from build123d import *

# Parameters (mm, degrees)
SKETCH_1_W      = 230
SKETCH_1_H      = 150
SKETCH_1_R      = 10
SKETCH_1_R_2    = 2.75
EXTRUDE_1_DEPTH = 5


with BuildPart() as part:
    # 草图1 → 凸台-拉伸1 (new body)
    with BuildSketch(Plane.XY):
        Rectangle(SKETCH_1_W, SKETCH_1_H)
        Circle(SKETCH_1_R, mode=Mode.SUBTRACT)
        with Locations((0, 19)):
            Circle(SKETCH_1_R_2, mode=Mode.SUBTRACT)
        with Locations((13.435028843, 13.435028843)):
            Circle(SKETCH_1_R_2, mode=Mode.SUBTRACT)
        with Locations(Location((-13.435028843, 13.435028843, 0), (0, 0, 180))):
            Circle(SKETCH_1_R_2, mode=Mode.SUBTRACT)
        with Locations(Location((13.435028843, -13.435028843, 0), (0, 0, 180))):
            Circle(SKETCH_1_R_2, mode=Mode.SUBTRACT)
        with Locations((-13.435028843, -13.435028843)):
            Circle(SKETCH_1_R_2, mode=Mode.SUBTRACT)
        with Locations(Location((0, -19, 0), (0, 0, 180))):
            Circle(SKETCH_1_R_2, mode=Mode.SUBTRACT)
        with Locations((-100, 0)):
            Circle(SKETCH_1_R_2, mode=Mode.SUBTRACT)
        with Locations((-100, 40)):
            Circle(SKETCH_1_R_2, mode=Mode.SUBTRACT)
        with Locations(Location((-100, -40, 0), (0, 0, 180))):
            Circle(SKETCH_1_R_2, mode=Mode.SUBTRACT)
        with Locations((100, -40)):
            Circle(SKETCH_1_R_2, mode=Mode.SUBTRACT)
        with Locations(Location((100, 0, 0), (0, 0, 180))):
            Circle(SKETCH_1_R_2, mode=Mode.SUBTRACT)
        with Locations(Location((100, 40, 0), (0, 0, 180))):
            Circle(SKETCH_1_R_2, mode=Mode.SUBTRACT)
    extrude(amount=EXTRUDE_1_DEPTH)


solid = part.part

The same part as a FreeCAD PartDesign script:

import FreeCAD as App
import Part
import Sketcher
Q = App.Units.Quantity

doc = App.newDocument("Part")
body = doc.addObject("PartDesign::Body", "Body")

sketch1 = body.newObject("Sketcher::SketchObject", "Sketch")
sketch1.AttachmentSupport = (doc.getObject("XY_Plane"), [""])
sketch1.MapMode = "FlatFace"
sketch1.addGeometry(Part.LineSegment(App.Vector(-115, 75, 0), App.Vector(-115, -75, 0)), False)
sketch1.addGeometry(Part.LineSegment(App.Vector(-115, -75, 0), App.Vector(115, -75, 0)), False)
sketch1.addGeometry(Part.LineSegment(App.Vector(115, -75, 0), App.Vector(115, 75, 0)), False)
sketch1.addGeometry(Part.LineSegment(App.Vector(115, 75, 0), App.Vector(-115, 75, 0)), False)
sketch1.addGeometry(Part.Circle(App.Vector(-100, -40, 0), App.Vector(0, 0, 1), 2.8), False)
sketch1.addGeometry(Part.Circle(App.Vector(-13.4, -13.4, 0), App.Vector(0, 0, 1), 2.8), False)
sketch1.addGeometry(Part.Circle(App.Vector(100, -40, 0), App.Vector(0, 0, 1), 2.8), False)
sketch1.addGeometry(Part.Circle(App.Vector(0, -19, 0), App.Vector(0, 0, 1), 2.8), False)
sketch1.addGeometry(Part.Circle(App.Vector(13.4, -13.4, 0), App.Vector(0, 0, 1), 2.8), False)
sketch1.addGeometry(Part.Circle(App.Vector(-100, 0, 0), App.Vector(0, 0, 1), 2.8), False)
sketch1.addGeometry(Part.Circle(App.Vector(-13.4, 13.4, 0), App.Vector(0, 0, 1), 2.8), False)
sketch1.addGeometry(Part.Circle(App.Vector(-100, 40, 0), App.Vector(0, 0, 1), 2.8), False)
sketch1.addGeometry(Part.Circle(App.Vector(0, 0, 0), App.Vector(0, 0, 1), 10), False)
sketch1.addGeometry(Part.Circle(App.Vector(13.4, 13.4, 0), App.Vector(0, 0, 1), 2.8), False)
sketch1.addGeometry(Part.Circle(App.Vector(0, 19, 0), App.Vector(0, 0, 1), 2.8), False)
sketch1.addGeometry(Part.Circle(App.Vector(100, 0, 0), App.Vector(0, 0, 1), 2.8), False)
sketch1.addGeometry(Part.Circle(App.Vector(100, 40, 0), App.Vector(0, 0, 1), 2.8), False)
sketch1.addConstraint(Sketcher.Constraint("Coincident", 0, 2, 1, 1))
sketch1.addConstraint(Sketcher.Constraint("Coincident", 1, 2, 2, 1))
sketch1.addConstraint(Sketcher.Constraint("Coincident", 2, 2, 3, 1))
sketch1.addConstraint(Sketcher.Constraint("Coincident", 3, 2, 0, 1))
sketch1.addConstraint(Sketcher.Constraint("Vertical", 0))
sketch1.addConstraint(Sketcher.Constraint("Horizontal", 1))
sketch1.addConstraint(Sketcher.Constraint("Vertical", 2))
sketch1.addConstraint(Sketcher.Constraint("Horizontal", 3))
sketch1.addConstraint(Sketcher.Constraint("Coincident", 12, 3, -1, 1))
sketch1.addConstraint(Sketcher.Constraint("Equal", 4, 5))
sketch1.addConstraint(Sketcher.Constraint("Equal", 5, 6))
sketch1.addConstraint(Sketcher.Constraint("Equal", 6, 7))
sketch1.addConstraint(Sketcher.Constraint("Equal", 7, 8))
sketch1.addConstraint(Sketcher.Constraint("Equal", 8, 9))
sketch1.addConstraint(Sketcher.Constraint("Equal", 9, 10))
sketch1.addConstraint(Sketcher.Constraint("Equal", 10, 11))
sketch1.addConstraint(Sketcher.Constraint("Equal", 11, 13))
sketch1.addConstraint(Sketcher.Constraint("Equal", 13, 14))
sketch1.addConstraint(Sketcher.Constraint("Equal", 14, 15))
sketch1.addConstraint(Sketcher.Constraint("Equal", 15, 16))
sketch1.addConstraint(Sketcher.Constraint("Symmetric", 8, 3, 10, 3, -1, 1))
sketch1.addConstraint(Sketcher.Constraint("Symmetric", 6, 3, 11, 3, -1, 1))
sketch1.addConstraint(Sketcher.Constraint("Symmetric", 5, 3, 13, 3, -1, 1))
sketch1.addConstraint(Sketcher.Constraint("Symmetric", 7, 3, 14, 3, -1, 1))
sketch1.addConstraint(Sketcher.Constraint("Symmetric", 9, 3, 15, 3, -1, 1))
sketch1.addConstraint(Sketcher.Constraint("Symmetric", 4, 3, 16, 3, -1, 1))
sketch1.addConstraint(Sketcher.Constraint("Symmetric", 0, 2, 2, 2, -1, 1))
sketch1.addConstraint(Sketcher.Constraint("Symmetric", 4, 3, 6, 3, -2))
sketch1.addConstraint(Sketcher.Constraint("Symmetric", 5, 3, 8, 3, -2))
sketch1.addConstraint(Sketcher.Constraint("PointOnObject", 7, 3, -2))
sketch1.addConstraint(Sketcher.Constraint("PointOnObject", 9, 3, -1))
sketch1.addConstraint(Sketcher.Constraint("Vertical", 4, 3, 9, 3))
sketch1.addConstraint(Sketcher.Constraint("Diameter", 12, Q("20 mm")))
sketch1.addConstraint(Sketcher.Constraint("Diameter", 4, Q("5.5 mm")))
sketch1.addConstraint(Sketcher.Constraint("DistanceX", 1, 1, 1, 2, Q("230 mm")))
sketch1.addConstraint(Sketcher.Constraint("DistanceY", 0, 2, 0, 1, Q("150 mm")))
sketch1.addConstraint(Sketcher.Constraint("DistanceX", 4, 3, -1, 1, Q("100 mm")))
sketch1.addConstraint(Sketcher.Constraint("DistanceY", 4, 3, -1, 1, Q("40 mm")))
sketch1.addConstraint(Sketcher.Constraint("DistanceY", 7, 3, -1, 1, Q("19 mm")))
sketch1.addConstraint(Sketcher.Constraint("DistanceX", 5, 3, -1, 1, Q("13.435029 mm")))
sketch1.addConstraint(Sketcher.Constraint("DistanceY", 5, 3, -1, 1, Q("13.435029 mm")))
pad1 = body.newObject("PartDesign::Pad", "Pad")
pad1.Profile = sketch1
pad1.Length = 5

doc.recompute()
